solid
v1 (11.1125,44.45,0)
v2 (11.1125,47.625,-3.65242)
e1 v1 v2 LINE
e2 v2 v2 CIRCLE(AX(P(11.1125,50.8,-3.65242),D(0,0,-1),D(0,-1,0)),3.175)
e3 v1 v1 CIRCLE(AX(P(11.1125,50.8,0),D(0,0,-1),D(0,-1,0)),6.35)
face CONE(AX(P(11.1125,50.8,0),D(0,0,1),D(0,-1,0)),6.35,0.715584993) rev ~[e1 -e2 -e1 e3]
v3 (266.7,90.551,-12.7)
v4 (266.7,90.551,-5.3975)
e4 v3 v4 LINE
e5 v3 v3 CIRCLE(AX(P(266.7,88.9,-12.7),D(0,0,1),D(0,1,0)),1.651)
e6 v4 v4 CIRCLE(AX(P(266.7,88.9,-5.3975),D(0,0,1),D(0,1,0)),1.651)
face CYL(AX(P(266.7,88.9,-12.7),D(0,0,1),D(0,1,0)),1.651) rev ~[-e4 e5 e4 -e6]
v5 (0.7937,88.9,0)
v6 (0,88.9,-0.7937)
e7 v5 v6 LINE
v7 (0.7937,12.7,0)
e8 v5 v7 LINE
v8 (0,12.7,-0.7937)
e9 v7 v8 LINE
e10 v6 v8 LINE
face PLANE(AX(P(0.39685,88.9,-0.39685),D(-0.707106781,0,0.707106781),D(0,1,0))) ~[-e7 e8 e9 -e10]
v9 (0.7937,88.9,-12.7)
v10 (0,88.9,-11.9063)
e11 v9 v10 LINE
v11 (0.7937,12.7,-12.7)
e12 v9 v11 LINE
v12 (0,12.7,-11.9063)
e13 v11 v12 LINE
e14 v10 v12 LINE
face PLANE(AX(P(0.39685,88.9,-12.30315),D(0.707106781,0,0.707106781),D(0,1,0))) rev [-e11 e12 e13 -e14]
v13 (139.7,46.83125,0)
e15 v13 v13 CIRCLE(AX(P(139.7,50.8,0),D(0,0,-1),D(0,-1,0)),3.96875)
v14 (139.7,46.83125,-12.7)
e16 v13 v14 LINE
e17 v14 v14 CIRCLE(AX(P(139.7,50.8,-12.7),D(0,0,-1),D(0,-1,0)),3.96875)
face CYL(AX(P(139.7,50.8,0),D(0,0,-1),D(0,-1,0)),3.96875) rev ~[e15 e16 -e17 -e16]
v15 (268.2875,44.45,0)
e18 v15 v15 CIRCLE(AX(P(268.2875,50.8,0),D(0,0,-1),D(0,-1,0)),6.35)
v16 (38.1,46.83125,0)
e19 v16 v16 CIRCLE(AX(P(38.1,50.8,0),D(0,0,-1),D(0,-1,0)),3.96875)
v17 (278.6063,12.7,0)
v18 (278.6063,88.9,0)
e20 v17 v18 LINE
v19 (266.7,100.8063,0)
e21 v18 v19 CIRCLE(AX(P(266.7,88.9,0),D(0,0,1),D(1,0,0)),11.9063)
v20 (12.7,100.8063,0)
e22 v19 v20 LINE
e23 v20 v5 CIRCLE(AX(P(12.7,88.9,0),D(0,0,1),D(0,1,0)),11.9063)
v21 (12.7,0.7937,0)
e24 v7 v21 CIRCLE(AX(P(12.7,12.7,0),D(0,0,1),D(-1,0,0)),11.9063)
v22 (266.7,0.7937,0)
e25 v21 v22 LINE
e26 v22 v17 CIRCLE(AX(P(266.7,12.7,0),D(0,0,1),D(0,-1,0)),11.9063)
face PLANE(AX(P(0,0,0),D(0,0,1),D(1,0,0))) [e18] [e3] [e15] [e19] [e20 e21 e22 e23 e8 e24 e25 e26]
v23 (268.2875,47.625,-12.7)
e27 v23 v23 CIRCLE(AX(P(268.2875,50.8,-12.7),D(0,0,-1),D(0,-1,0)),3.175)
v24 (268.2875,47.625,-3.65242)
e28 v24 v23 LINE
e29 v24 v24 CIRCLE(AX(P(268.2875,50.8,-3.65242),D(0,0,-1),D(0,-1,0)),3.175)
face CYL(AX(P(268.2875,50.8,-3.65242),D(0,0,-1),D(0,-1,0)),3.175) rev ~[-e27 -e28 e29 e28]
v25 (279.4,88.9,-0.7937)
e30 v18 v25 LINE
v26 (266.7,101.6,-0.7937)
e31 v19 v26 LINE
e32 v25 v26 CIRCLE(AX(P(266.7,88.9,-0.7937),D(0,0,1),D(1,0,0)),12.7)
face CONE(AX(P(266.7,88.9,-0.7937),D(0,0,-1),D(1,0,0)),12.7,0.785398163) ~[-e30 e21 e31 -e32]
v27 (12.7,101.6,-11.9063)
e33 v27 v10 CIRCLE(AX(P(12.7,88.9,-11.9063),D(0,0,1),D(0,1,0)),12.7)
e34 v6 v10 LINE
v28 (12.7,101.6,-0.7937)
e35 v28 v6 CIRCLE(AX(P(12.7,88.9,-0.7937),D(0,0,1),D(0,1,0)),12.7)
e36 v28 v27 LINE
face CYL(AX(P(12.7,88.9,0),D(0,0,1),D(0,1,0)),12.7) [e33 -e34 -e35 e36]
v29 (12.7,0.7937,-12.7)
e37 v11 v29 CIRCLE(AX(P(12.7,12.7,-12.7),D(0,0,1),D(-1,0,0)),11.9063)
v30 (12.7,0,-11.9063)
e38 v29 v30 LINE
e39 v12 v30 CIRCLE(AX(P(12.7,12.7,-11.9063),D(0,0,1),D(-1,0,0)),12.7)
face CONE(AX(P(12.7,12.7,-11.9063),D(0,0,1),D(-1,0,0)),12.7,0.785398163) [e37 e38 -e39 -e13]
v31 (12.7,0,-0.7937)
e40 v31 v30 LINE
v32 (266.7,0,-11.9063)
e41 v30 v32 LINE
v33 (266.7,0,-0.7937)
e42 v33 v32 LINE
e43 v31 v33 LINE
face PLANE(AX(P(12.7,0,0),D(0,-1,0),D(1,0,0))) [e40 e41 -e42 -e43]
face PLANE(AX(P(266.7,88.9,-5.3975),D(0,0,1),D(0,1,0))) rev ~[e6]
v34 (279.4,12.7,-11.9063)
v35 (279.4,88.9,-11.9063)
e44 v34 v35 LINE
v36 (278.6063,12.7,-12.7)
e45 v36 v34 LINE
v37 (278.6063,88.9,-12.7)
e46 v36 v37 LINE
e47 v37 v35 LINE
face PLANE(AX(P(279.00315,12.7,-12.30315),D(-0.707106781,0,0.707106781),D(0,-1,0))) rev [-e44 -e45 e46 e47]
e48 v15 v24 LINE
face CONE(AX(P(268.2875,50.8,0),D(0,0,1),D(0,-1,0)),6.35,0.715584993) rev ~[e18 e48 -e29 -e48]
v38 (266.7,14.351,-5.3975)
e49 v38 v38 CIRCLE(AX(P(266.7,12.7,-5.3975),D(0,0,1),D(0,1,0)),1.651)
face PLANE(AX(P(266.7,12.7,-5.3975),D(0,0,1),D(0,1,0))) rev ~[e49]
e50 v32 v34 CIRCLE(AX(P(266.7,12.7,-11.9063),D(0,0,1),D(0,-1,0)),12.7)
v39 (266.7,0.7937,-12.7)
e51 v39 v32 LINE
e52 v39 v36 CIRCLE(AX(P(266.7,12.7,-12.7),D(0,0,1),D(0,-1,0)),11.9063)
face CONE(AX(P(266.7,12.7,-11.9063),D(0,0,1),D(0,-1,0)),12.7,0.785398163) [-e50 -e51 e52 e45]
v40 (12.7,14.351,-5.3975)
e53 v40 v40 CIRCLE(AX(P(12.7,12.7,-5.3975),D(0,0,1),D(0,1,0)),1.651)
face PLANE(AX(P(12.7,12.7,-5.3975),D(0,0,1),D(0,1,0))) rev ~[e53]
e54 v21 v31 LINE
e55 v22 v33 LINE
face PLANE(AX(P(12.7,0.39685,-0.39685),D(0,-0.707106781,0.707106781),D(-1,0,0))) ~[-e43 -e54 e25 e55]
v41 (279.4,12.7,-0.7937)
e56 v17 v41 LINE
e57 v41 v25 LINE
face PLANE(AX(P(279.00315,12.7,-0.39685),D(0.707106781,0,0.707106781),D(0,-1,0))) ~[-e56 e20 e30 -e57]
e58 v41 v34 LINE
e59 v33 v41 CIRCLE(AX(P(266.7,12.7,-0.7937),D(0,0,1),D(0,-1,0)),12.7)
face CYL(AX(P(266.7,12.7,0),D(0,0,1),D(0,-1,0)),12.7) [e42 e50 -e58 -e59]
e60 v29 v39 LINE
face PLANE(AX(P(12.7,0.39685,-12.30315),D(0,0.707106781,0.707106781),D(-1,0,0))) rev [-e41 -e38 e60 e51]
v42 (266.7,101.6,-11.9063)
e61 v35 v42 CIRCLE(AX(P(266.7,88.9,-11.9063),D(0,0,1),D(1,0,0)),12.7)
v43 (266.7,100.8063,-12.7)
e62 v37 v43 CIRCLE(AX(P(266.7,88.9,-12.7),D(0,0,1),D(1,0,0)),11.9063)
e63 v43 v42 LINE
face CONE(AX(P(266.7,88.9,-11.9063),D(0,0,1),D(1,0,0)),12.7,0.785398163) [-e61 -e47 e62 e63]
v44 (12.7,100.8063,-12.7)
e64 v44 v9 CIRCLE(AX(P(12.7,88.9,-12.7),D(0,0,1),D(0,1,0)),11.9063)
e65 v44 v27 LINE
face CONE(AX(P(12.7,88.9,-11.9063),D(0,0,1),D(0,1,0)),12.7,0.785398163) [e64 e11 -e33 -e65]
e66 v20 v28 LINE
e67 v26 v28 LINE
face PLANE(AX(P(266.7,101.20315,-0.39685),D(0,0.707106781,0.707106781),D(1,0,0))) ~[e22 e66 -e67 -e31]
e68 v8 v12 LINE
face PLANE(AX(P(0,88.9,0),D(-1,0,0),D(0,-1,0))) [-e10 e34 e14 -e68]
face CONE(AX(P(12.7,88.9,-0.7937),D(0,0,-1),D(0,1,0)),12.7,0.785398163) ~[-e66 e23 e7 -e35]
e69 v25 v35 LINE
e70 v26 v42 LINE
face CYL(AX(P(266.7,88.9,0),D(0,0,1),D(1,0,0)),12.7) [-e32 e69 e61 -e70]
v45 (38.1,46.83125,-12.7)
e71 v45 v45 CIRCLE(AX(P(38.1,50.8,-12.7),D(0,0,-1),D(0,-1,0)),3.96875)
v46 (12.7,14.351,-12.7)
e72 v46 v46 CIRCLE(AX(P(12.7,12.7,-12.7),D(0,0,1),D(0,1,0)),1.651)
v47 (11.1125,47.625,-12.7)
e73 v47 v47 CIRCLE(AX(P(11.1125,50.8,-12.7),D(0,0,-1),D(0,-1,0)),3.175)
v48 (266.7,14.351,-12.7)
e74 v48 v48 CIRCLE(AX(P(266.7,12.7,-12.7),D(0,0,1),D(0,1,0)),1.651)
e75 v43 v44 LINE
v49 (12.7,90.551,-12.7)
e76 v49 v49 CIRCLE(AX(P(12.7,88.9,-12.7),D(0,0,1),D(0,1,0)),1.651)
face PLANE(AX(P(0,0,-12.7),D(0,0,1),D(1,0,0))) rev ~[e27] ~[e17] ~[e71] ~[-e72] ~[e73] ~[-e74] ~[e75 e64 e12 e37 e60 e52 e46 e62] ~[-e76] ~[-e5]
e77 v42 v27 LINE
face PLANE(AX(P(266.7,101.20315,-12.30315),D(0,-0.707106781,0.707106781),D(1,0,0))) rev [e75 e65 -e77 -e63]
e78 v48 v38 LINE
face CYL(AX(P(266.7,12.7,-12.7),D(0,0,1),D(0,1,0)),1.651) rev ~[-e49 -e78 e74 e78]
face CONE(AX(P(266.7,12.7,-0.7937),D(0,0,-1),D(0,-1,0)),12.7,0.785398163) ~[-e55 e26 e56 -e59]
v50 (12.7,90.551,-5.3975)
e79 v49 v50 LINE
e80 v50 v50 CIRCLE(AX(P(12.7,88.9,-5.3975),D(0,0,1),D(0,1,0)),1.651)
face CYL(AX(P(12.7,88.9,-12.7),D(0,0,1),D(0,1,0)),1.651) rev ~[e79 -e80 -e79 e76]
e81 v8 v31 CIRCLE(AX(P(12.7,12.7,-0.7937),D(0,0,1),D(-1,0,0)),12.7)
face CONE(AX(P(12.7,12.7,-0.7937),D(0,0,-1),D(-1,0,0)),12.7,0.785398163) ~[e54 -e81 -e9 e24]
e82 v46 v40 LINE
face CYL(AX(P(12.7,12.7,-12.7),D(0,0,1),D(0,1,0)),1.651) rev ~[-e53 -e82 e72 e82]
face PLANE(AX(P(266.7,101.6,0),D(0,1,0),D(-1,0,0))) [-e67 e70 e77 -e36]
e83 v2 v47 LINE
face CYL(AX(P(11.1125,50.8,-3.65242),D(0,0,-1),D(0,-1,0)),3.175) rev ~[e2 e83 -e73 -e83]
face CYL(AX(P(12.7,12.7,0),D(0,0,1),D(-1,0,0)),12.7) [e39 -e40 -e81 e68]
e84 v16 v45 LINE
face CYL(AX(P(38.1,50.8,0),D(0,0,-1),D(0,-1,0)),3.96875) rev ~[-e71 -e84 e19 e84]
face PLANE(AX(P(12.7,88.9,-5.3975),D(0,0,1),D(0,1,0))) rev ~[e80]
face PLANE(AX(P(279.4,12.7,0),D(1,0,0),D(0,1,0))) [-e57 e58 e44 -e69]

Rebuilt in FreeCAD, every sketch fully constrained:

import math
import FreeCAD as App
import Part
import Sketcher
from FreeCAD import Vector
Q = App.Units.Quantity


def edges_at(feature, points):
    """Names of the edges that pass closest to the given points."""
    edges = feature.Shape.Edges
    near = lambda p: min(range(len(edges)), key=lambda i: edges[i].distToShape(Part.Vertex(*p))[0])
    return sorted({f"Edge{near(p) + 1}" for p in points})

doc = App.newDocument("Part")
body = doc.addObject("PartDesign::Body", "Body")

# Sketch on XY plane
sketch1 = body.newObject("Sketcher::SketchObject", "Sketch")
sketch1.AttachmentSupport = (doc.getObject("XY_Plane"), [""])
sketch1.MapMode = "FlatFace"
sketch1.addGeometry(Part.ArcOfCircle(Part.Circle(Vector(13, 13, 0), Vector(0, 0, 1), 13), math.radians(180), math.radians(270)), False)
sketch1.addGeometry(Part.LineSegment(Vector(13, 0, 0), Vector(267, 0, 0)), False)
sketch1.addGeometry(Part.ArcOfCircle(Part.Circle(Vector(267, 13, 0), Vector(0, 0, 1), 13), math.radians(-90), math.radians(0)), False)
sketch1.addGeometry(Part.LineSegment(Vector(279, 13, 0), Vector(279, 89, 0)), False)
sketch1.addGeometry(Part.ArcOfCircle(Part.Circle(Vector(267, 89, 0), Vector(0, 0, 1), 13), math.radians(0), math.radians(90)), False)
sketch1.addGeometry(Part.LineSegment(Vector(267, 102, 0), Vector(13, 102, 0)), False)
sketch1.addGeometry(Part.ArcOfCircle(Part.Circle(Vector(13, 89, 0), Vector(0, 0, 1), 13), math.radians(90), math.radians(180)), False)
sketch1.addGeometry(Part.LineSegment(Vector(0, 89, 0), Vector(0, 13, 0)), False)
sketch1.addConstraint(Sketcher.Constraint("Tangent", 0, 2, 1, 1))
sketch1.addConstraint(Sketcher.Constraint("Tangent", 1, 2, 2, 1))
sketch1.addConstraint(Sketcher.Constraint("Tangent", 2, 2, 3, 1))
sketch1.addConstraint(Sketcher.Constraint("Tangent", 3, 2, 4, 1))
sketch1.addConstraint(Sketcher.Constraint("Tangent", 4, 2, 5, 1))
sketch1.addConstraint(Sketcher.Constraint("Tangent", 5, 2, 6, 1))
sketch1.addConstraint(Sketcher.Constraint("Tangent", 6, 2, 7, 1))
sketch1.addConstraint(Sketcher.Constraint("Tangent", 7, 2, 0, 1))
sketch1.addConstraint(Sketcher.Constraint("Horizontal", 1))
sketch1.addConstraint(Sketcher.Constraint("Vertical", 3))
sketch1.addConstraint(Sketcher.Constraint("Horizontal", 5))
sketch1.addConstraint(Sketcher.Constraint("Vertical", 7))
sketch1.addConstraint(Sketcher.Constraint("Equal", 0, 2))
sketch1.addConstraint(Sketcher.Constraint("Equal", 2, 4))
sketch1.addConstraint(Sketcher.Constraint("Equal", 4, 6))
sketch1.addConstraint(Sketcher.Constraint("PointOnObject", 0, 2, -1))
sketch1.addConstraint(Sketcher.Constraint("PointOnObject", 6, 2, -2))
sketch1.addConstraint(Sketcher.Constraint("Radius", 0, Q("0.5 in")))
sketch1.addConstraint(Sketcher.Constraint("DistanceX", -1, 1, 2, 2, Q("11 in")))
sketch1.addConstraint(Sketcher.Constraint("DistanceY", -1, 1, 4, 2, Q("4 in")))
pad1 = body.newObject("PartDesign::Pad", "Pad")
pad1.Profile = sketch1
pad1.Length = Q("0.5 in")
pad1.Reversed = True

# Sketch on XY plane
sketch2 = body.newObject("Sketcher::SketchObject", "Sketch001")
sketch2.AttachmentSupport = (doc.getObject("XY_Plane"), [""])
sketch2.MapMode = "FlatFace"
sketch2.addGeometry(Part.Circle(Vector(11.1, 50.8, 0), Vector(0, 0, 1), 3.2), False)
sketch2.addConstraint(Sketcher.Constraint("Diameter", 0, Q("0.25 in")))
sketch2.addConstraint(Sketcher.Constraint("DistanceY", -1, 1, 0, 3, Q("2 in")))
sketch2.addConstraint(Sketcher.Constraint("DistanceX", -1, 1, 0, 3, Q("0.4375 in")))
doc.recompute()
hole = body.newObject("PartDesign::Hole", "Hole")
hole.Profile = sketch2
hole.ThreadType = "None"
hole.Diameter = Q("0.25 in")
hole.DepthType = "ThroughAll"
hole.HoleCutType = "Countersink"
hole.HoleCutDiameter = Q("0.5 in")
hole.HoleCutCountersinkAngle = 82

# Sketch on XY plane
sketch3 = body.newObject("Sketcher::SketchObject", "Sketch002")
sketch3.AttachmentSupport = (doc.getObject("XY_Plane"), [""])
sketch3.MapMode = "FlatFace"
sketch3.addGeometry(Part.Circle(Vector(268.3, 50.8, 0), Vector(0, 0, 1), 3.2), False)
sketch3.addConstraint(Sketcher.Constraint("Diameter", 0, Q("0.25 in")))
sketch3.addConstraint(Sketcher.Constraint("DistanceY", -1, 1, 0, 3, Q("2 in")))
sketch3.addConstraint(Sketcher.Constraint("DistanceX", -1, 1, 0, 3, Q("10.5625 in")))
doc.recompute()
hole2 = body.newObject("PartDesign::Hole", "Hole001")
hole2.Profile = sketch3
hole2.ThreadType = "None"
hole2.Diameter = Q("0.25 in")
hole2.DepthType = "ThroughAll"
hole2.HoleCutType = "Countersink"
hole2.HoleCutDiameter = Q("0.5 in")
hole2.HoleCutCountersinkAngle = 82

# Sketch on XY plane
sketch4 = body.newObject("Sketcher::SketchObject", "Sketch003")
sketch4.AttachmentSupport = (doc.getObject("XY_Plane"), [""])
sketch4.MapMode = "FlatFace"
sketch4.addGeometry(Part.Circle(Vector(38.1, 50.8, 0), Vector(0, 0, 1), 4), False)
sketch4.addConstraint(Sketcher.Constraint("Diameter", 0, Q("0.3125 in")))
sketch4.addConstraint(Sketcher.Constraint("DistanceY", -1, 1, 0, 3, Q("2 in")))
sketch4.addConstraint(Sketcher.Constraint("DistanceX", -1, 1, 0, 3, Q("1.5 in")))
doc.recompute()
hole3 = body.newObject("PartDesign::Hole", "Hole002")
hole3.Profile = sketch4
hole3.ThreadType = "None"
hole3.Diameter = Q("0.3125 in")
hole3.DepthType = "ThroughAll"

# Sketch on XY plane
sketch5 = body.newObject("Sketcher::SketchObject", "Sketch004")
sketch5.AttachmentSupport = (doc.getObject("XY_Plane"), [""])
sketch5.MapMode = "FlatFace"
sketch5.addGeometry(Part.Circle(Vector(139.7, 50.8, 0), Vector(0, 0, 1), 4), False)
sketch5.addConstraint(Sketcher.Constraint("Diameter", 0, Q("0.3125 in")))
sketch5.addConstraint(Sketcher.Constraint("DistanceY", -1, 1, 0, 3, Q("2 in")))
sketch5.addConstraint(Sketcher.Constraint("DistanceX", -1, 1, 0, 3, Q("5.5 in")))
doc.recompute()
hole4 = body.newObject("PartDesign::Hole", "Hole003")
hole4.Profile = sketch5
hole4.ThreadType = "None"
hole4.Diameter = Q("0.3125 in")
hole4.DepthType = "ThroughAll"
doc.recompute()

chamfer = body.newObject("PartDesign::Chamfer", "Chamfer")
chamfer.Base = (hole4, edges_at(hole4, [
    (139.7, 101.6, 0),
    (275.68, 97.88, 0),
    (279.4, 50.8, 0),
    (275.68, 3.72, 0),
    (139.7, 0, 0),
    (3.72, 3.72, 0),
    (0, 50.8, 0),
    (3.72, 97.88, 0),
]))
chamfer.Size = Q("0.031248 in")
doc.recompute()

chamfer2 = body.newObject("PartDesign::Chamfer", "Chamfer001")
chamfer2.Base = (chamfer, edges_at(chamfer, [
    (139.7, 101.6, -12.7),
    (275.68, 97.88, -12.7),
    (279.4, 50.8, -12.7),
    (275.68, 3.72, -12.7),
    (139.7, 0, -12.7),
    (3.72, 3.72, -12.7),
    (0, 50.8, -12.7),
    (3.72, 97.88, -12.7),
]))
chamfer2.Size = Q("0.031248 in")

# Sketch on XY plane
sketch6 = body.newObject("Sketcher::SketchObject", "Sketch005")
sketch6.AttachmentSupport = (doc.getObject("XY_Plane"), [""])
sketch6.MapMode = "FlatFace"
sketch6.AttachmentOffset = App.Placement(Vector(0, 0, -0.5 * 25.4), App.Rotation())
sketch6.addGeometry(Part.Circle(Vector(266.7, 88.9, 0), Vector(0, 0, 1), 1.7), False)
sketch6.addGeometry(Part.Circle(Vector(266.7, 12.7, 0), Vector(0, 0, 1), 1.7), False)
sketch6.addGeometry(Part.Circle(Vector(12.7, 12.7, 0), Vector(0, 0, 1), 1.7), False)
sketch6.addGeometry(Part.Circle(Vector(12.7, 88.9, 0), Vector(0, 0, 1), 1.7), False)
sketch6.addConstraint(Sketcher.Constraint("Equal", 0, 1))
sketch6.addConstraint(Sketcher.Constraint("Equal", 1, 2))
sketch6.addConstraint(Sketcher.Constraint("Equal", 2, 3))
sketch6.addConstraint(Sketcher.Constraint("Horizontal", 1, 3, 2, 3))
sketch6.addConstraint(Sketcher.Constraint("Horizontal", 0, 3, 3, 3))
sketch6.addConstraint(Sketcher.Constraint("Vertical", 0, 3, 1, 3))
sketch6.addConstraint(Sketcher.Constraint("Vertical", 2, 3, 3, 3))
sketch6.addConstraint(Sketcher.Constraint("Diameter", 0, Q("0.13 in")))
sketch6.addConstraint(Sketcher.Constraint("DistanceY", 1, 3, 0, 3, Q("3 in")))
sketch6.addConstraint(Sketcher.Constraint("DistanceX", 2, 3, 1, 3, Q("10 in")))
sketch6.addConstraint(Sketcher.Constraint("DistanceX", -1, 1, 0, 3, Q("10.5 in")))
sketch6.addConstraint(Sketcher.Constraint("DistanceY", -1, 1, 0, 3, Q("3.5 in")))
doc.recompute()
hole5 = body.newObject("PartDesign::Hole", "Hole004")
hole5.Profile = sketch6
hole5.ThreadType = "None"
hole5.Diameter = Q("0.13 in")
hole5.DepthType = "Dimension"
hole5.Depth = Q("0.2875 in")
hole5.DrillPoint = "Flat"
hole5.Reversed = True

doc.recompute()
